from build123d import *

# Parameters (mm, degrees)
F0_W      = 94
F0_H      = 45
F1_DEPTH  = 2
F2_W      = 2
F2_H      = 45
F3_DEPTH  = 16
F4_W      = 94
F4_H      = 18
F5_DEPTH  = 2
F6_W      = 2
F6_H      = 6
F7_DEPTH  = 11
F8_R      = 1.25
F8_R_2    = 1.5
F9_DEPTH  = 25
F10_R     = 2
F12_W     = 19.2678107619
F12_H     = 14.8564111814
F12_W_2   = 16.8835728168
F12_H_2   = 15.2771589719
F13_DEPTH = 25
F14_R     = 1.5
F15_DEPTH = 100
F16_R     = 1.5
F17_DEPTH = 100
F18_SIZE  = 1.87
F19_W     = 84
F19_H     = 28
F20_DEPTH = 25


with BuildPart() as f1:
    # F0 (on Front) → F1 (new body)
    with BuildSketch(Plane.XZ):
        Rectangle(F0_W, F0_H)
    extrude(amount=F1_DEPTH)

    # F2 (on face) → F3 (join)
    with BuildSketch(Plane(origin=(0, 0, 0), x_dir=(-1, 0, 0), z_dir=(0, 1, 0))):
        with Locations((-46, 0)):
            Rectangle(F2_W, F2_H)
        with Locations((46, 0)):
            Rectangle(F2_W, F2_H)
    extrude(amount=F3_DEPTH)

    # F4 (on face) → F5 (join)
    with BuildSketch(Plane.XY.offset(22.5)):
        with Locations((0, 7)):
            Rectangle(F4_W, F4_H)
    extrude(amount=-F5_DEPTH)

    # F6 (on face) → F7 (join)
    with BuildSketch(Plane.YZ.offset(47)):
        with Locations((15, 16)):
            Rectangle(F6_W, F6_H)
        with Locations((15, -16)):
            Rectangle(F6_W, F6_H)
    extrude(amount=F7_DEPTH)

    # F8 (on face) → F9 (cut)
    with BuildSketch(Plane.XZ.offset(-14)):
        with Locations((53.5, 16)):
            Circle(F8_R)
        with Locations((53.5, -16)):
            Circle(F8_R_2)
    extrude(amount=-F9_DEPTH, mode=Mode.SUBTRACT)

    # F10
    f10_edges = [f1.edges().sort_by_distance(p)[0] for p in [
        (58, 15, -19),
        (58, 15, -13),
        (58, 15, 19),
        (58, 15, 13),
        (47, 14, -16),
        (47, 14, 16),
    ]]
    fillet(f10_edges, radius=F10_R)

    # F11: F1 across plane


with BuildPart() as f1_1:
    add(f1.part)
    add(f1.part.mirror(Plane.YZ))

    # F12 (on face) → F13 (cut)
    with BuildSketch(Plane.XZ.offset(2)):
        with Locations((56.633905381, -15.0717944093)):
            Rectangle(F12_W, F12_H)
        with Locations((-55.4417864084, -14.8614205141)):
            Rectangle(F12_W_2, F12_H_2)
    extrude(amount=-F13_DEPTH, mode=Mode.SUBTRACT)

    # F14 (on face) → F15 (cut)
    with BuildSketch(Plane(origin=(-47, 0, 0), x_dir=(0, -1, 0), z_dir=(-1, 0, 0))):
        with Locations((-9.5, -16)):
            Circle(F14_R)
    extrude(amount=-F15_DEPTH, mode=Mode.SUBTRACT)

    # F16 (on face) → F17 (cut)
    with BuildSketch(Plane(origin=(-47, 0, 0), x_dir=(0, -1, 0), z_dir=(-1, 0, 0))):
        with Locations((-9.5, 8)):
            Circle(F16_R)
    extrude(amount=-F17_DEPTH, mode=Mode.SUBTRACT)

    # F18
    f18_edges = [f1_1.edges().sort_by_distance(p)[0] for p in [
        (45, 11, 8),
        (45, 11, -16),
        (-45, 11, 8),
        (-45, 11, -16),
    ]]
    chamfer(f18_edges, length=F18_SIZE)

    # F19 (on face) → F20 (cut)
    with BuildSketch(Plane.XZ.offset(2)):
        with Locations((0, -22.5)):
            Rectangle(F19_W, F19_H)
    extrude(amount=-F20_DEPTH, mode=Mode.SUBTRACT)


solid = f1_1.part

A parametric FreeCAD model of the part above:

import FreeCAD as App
import Part
import Sketcher
Q = App.Units.Quantity


def edges_at(feature, points):
    """Names of the edges that pass closest to the given points."""
    edges = feature.Shape.Edges
    near = lambda p: min(range(len(edges)), key=lambda i: edges[i].distToShape(Part.Vertex(*p))[0])
    return sorted({f"Edge{near(p) + 1}" for p in points})

doc = App.newDocument("Part")
body = doc.addObject("PartDesign::Body", "Body")

# Sketch on XZ plane
sketch1 = doc.addObject("Sketcher::SketchObject", "Sketch")
body.addObject(sketch1)
sketch1.AttachmentSupport = (doc.XZ_Plane, [""])
sketch1.MapMode = "FlatFace"
sketch1.addGeometry([
    Part.LineSegment(App.Vector(-47, 22, 0), App.Vector(-47, -22, 0)),
    Part.LineSegment(App.Vector(-47, -22, 0), App.Vector(47, -22, 0)),
    Part.LineSegment(App.Vector(47, -22, 0), App.Vector(47, 22, 0)),
    Part.LineSegment(App.Vector(47, 22, 0), App.Vector(-47, 22, 0)),
], False)
sketch1.addConstraint([
    Sketcher.Constraint("Coincident", 0, 2, 1, 1),
    Sketcher.Constraint("Coincident", 1, 2, 2, 1),
    Sketcher.Constraint("Coincident", 2, 2, 3, 1),
    Sketcher.Constraint("Coincident", 3, 2, 0, 1),
    Sketcher.Constraint("Vertical", 0),
    Sketcher.Constraint("Horizontal", 1),
    Sketcher.Constraint("Vertical", 2),
    Sketcher.Constraint("Horizontal", 3),
    Sketcher.Constraint("Symmetric", 0, 2, 2, 2, -1, 1),
    Sketcher.Constraint("DistanceX", 1, 1, 1, 2, Q("94 mm")),
    Sketcher.Constraint("DistanceY", 0, 2, 0, 1, Q("45 mm")),
])
pad1 = doc.addObject("PartDesign::Pad", "Pad")
body.addObject(pad1)
pad1.Profile = sketch1
pad1.Length = 2

# Sketch on XZ plane
sketch2 = doc.addObject("Sketcher::SketchObject", "Sketch001")
body.addObject(sketch2)
sketch2.AttachmentSupport = (doc.XZ_Plane, [""])
sketch2.MapMode = "FlatFace"
sketch2.addGeometry([
    Part.LineSegment(App.Vector(47, 22.5, 0), App.Vector(47, -22.5, 0)),  # 0
    Part.LineSegment(App.Vector(47, -22.5, 0), App.Vector(45, -22.5, 0)),  # 1
    Part.LineSegment(App.Vector(45, -22.5, 0), App.Vector(45, 22.5, 0)),  # 2
    Part.LineSegment(App.Vector(45, 22.5, 0), App.Vector(47, 22.5, 0)),  # 3
    Part.LineSegment(App.Vector(-45, 22.5, 0), App.Vector(-45, -22.5, 0)),  # 4
    Part.LineSegment(App.Vector(-45, -22.5, 0), App.Vector(-47, -22.5, 0)),  # 5
    Part.LineSegment(App.Vector(-47, -22.5, 0), App.Vector(-47, 22.5, 0)),  # 6
    Part.LineSegment(App.Vector(-47, 22.5, 0), App.Vector(-45, 22.5, 0)),  # 7
], False)
sketch2.addConstraint([
    Sketcher.Constraint("Coincident", 0, 2, 1, 1),
    Sketcher.Constraint("Coincident", 1, 2, 2, 1),
    Sketcher.Constraint("Coincident", 2, 2, 3, 1),
    Sketcher.Constraint("Coincident", 3, 2, 0, 1),
    Sketcher.Constraint("Coincident", 4, 2, 5, 1),
    Sketcher.Constraint("Coincident", 5, 2, 6, 1),
    Sketcher.Constraint("Coincident", 6, 2, 7, 1),
    Sketcher.Constraint("Coincident", 7, 2, 4, 1),
    Sketcher.Constraint("Vertical", 0),
    Sketcher.Constraint("Horizontal", 1),
    Sketcher.Constraint("Vertical", 2),
    Sketcher.Constraint("Horizontal", 3),
    Sketcher.Constraint("Vertical", 4),
    Sketcher.Constraint("Horizontal", 5),
    Sketcher.Constraint("Vertical", 6),
    Sketcher.Constraint("Horizontal", 7),
    Sketcher.Constraint("Symmetric", 2, 2, 4, 2, -1, 1),
    Sketcher.Constraint("Symmetric", 0, 2, 6, 2, -1, 1),
    Sketcher.Constraint("Horizontal", 1, 2, 4, 2),
    Sketcher.Constraint("DistanceX", 1, 2, 1, 1, Q("2 mm")),
    Sketcher.Constraint("DistanceY", 0, 2, 0, 1, Q("45 mm")),
    Sketcher.Constraint("DistanceX", -1, 1, 0, 2, Q("47 mm")),
])
pad2 = doc.addObject("PartDesign::Pad", "Pad001")
body.addObject(pad2)
pad2.Profile = sketch2
pad2.Length = 16
pad2.Reversed = True

# Sketch on XY plane
sketch3 = doc.addObject("Sketcher::SketchObject", "Sketch002")
body.addObject(sketch3)
sketch3.AttachmentSupport = (doc.XY_Plane, [""])
sketch3.MapMode = "FlatFace"
sketch3.AttachmentOffset = App.Placement(App.Vector(0, 0, 22.5), App.Rotation())
sketch3.addGeometry([
    Part.LineSegment(App.Vector(-47, 16, 0), App.Vector(-47, -2, 0)),
    Part.LineSegment(App.Vector(-47, -2, 0), App.Vector(47, -2, 0)),
    Part.LineSegment(App.Vector(47, -2, 0), App.Vector(47, 16, 0)),
    Part.LineSegment(App.Vector(47, 16, 0), App.Vector(-47, 16, 0)),
], False)
sketch3.addConstraint([
    Sketcher.Constraint("Coincident", 0, 2, 1, 1),
    Sketcher.Constraint("Coincident", 1, 2, 2, 1),
    Sketcher.Constraint("Coincident", 2, 2, 3, 1),
    Sketcher.Constraint("Coincident", 3, 2, 0, 1),
    Sketcher.Constraint("Vertical", 0),
    Sketcher.Constraint("Horizontal", 1),
    Sketcher.Constraint("Vertical", 2),
    Sketcher.Constraint("Horizontal", 3),
    Sketcher.Constraint("DistanceX", 1, 1, 1, 2, Q("94 mm")),
    Sketcher.Constraint("DistanceY", 0, 2, 0, 1, Q("18 mm")),
    Sketcher.Constraint("DistanceX", 0, 2, -1, 1, Q("47 mm")),
    Sketcher.Constraint("DistanceY", 0, 2, -1, 1, Q("2 mm")),
])
pad3 = doc.addObject("PartDesign::Pad", "Pad002")
body.addObject(pad3)
pad3.Profile = sketch3
pad3.Length = 2
pad3.Reversed = True

# Sketch on YZ plane
sketch4 = doc.addObject("Sketcher::SketchObject", "Sketch003")
body.addObject(sketch4)
sketch4.AttachmentSupport = (doc.YZ_Plane, [""])
sketch4.MapMode = "FlatFace"
sketch4.AttachmentOffset = App.Placement(App.Vector(0, 0, 47), App.Rotation())
sketch4.addGeometry([
    Part.LineSegment(App.Vector(14, 19, 0), App.Vector(14, 13, 0)),  # 0
    Part.LineSegment(App.Vector(14, 13, 0), App.Vector(16, 13, 0)),  # 1
    Part.LineSegment(App.Vector(16, 13, 0), App.Vector(16, 19, 0)),  # 2
    Part.LineSegment(App.Vector(16, 19, 0), App.Vector(14, 19, 0)),  # 3
    Part.LineSegment(App.Vector(14, -13, 0), App.Vector(14, -19, 0)),  # 4
    Part.LineSegment(App.Vector(14, -19, 0), App.Vector(16, -19, 0)),  # 5
    Part.LineSegment(App.Vector(16, -19, 0), App.Vector(16, -13, 0)),  # 6
    Part.LineSegment(App.Vector(16, -13, 0), App.Vector(14, -13, 0)),  # 7
], False)
sketch4.addConstraint([
    Sketcher.Constraint("Coincident", 0, 2, 1, 1),
    Sketcher.Constraint("Coincident", 1, 2, 2, 1),
    Sketcher.Constraint("Coincident", 2, 2, 3, 1),
    Sketcher.Constraint("Coincident", 3, 2, 0, 1),
    Sketcher.Constraint("Coincident", 4, 2, 5, 1),
    Sketcher.Constraint("Coincident", 5, 2, 6, 1),
    Sketcher.Constraint("Coincident", 6, 2, 7, 1),
    Sketcher.Constraint("Coincident", 7, 2, 4, 1),
    Sketcher.Constraint("Vertical", 0),
    Sketcher.Constraint("Horizontal", 1),
    Sketcher.Constraint("Vertical", 2),
    Sketcher.Constraint("Horizontal", 3),
    Sketcher.Constraint("Vertical", 4),
    Sketcher.Constraint("Horizontal", 5),
    Sketcher.Constraint("Vertical", 6),
    Sketcher.Constraint("Horizontal", 7),
    Sketcher.Constraint("Symmetric", 3, 2, 4, 2, -1),
    Sketcher.Constraint("Symmetric", 1, 2, 6, 2, -1),
    Sketcher.Constraint("DistanceX", 1, 1, 1, 2, Q("2 mm")),
    Sketcher.Constraint("DistanceY", 0, 2, 0, 1, Q("6 mm")),
    Sketcher.Constraint("DistanceX", -1, 1, 0, 2, Q("14 mm")),
    Sketcher.Constraint("DistanceY", -1, 1, 0, 2, Q("13 mm")),
])
pad4 = doc.addObject("PartDesign::Pad", "Pad003")
body.addObject(pad4)
pad4.Profile = sketch4
pad4.Length = 11

# Sketch on XZ plane
sketch5 = doc.addObject("Sketcher::SketchObject", "Sketch004")
body.addObject(sketch5)
sketch5.AttachmentSupport = (doc.XZ_Plane, [""])
sketch5.MapMode = "FlatFace"
sketch5.AttachmentOffset = App.Placement(App.Vector(0, 0, -14), App.Rotation())
sketch5.addGeometry([
    Part.Circle(App.Vector(53.5, 16, 0), App.Vector(0, 0, 1), 1.2),
    Part.Circle(App.Vector(53.5, -16, 0), App.Vector(0, 0, 1), 1.5),
], False)
sketch5.addConstraint([
    Sketcher.Constraint("Symmetric", 0, 3, 1, 3, -1),
    Sketcher.Constraint("Diameter", 1, Q("3 mm")),
    Sketcher.Constraint("Diameter", 0, Q("2.5 mm")),
    Sketcher.Constraint("DistanceY", -1, 1, 0, 3, Q("16 mm")),
    Sketcher.Constraint("DistanceX", -1, 1, 0, 3, Q("53.5 mm")),
])
pocket1 = doc.addObject("PartDesign::Pocket", "Pocket")
body.addObject(pocket1)
pocket1.Profile = sketch5
pocket1.Length = 25
doc.recompute()

fillet = doc.addObject("PartDesign::Fillet", "Fillet")
body.addObject(fillet)
fillet.Base = (pocket1, edges_at(pocket1, [
    (58, 15, -19),
    (58, 15, -13),
    (58, 15, 19),
    (58, 15, 13),
    (47, 14, -16),
    (47, 14, 16),
]))
fillet.Radius = 2
body2 = doc.addObject("PartDesign::Body", "Body001")
doc.recompute()

body2.BaseFeature = body
doc.recompute()

mirroring = doc.addObject("Part::Mirroring", "Mirroring")
mirroring.Source = body
mirroring.Base = App.Vector(0, 0, 0)
mirroring.Normal = App.Vector(1, 0, 0)
body3 = doc.addObject("PartDesign::Body", "Body002")
body3.BaseFeature = mirroring
boolean = doc.addObject("PartDesign::Boolean", "Boolean")
body2.addObject(boolean)
boolean.Type = "Fuse"
boolean.addObjects([body3])
doc.recompute()

# Sketch on XZ plane
sketch6 = doc.addObject("Sketcher::SketchObject", "Sketch005")
body2.addObject(sketch6)
sketch6.AttachmentSupport = (doc.getObject("XZ_Plane001"), [""])
sketch6.MapMode = "FlatFace"
sketch6.AttachmentOffset = App.Placement(App.Vector(0, 0, 2), App.Rotation())
sketch6.addGeometry([
    Part.LineSegment(App.Vector(47, -8, 0), App.Vector(47, -22, 0)),  # 0
    Part.LineSegment(App.Vector(47, -22, 0), App.Vector(66, -22, 0)),  # 1
    Part.LineSegment(App.Vector(66, -22, 0), App.Vector(66, -8, 0)),  # 2
    Part.LineSegment(App.Vector(66, -8, 0), App.Vector(47, -8, 0)),  # 3
    Part.LineSegment(App.Vector(-64, -7, 0), App.Vector(-64, -22, 0)),  # 4
    Part.LineSegment(App.Vector(-64, -22, 0), App.Vector(-47, -22, 0)),  # 5
    Part.LineSegment(App.Vector(-47, -22, 0), App.Vector(-47, -7, 0)),  # 6
    Part.LineSegment(App.Vector(-47, -7, 0), App.Vector(-64, -7, 0)),  # 7
], False)
sketch6.addConstraint([
    Sketcher.Constraint("Coincident", 0, 2, 1, 1),
    Sketcher.Constraint("Coincident", 1, 2, 2, 1),
    Sketcher.Constraint("Coincident", 2, 2, 3, 1),
    Sketcher.Constraint("Coincident", 3, 2, 0, 1),
    Sketcher.Constraint("Coincident", 4, 2, 5, 1),
    Sketcher.Constraint("Coincident", 5, 2, 6, 1),
    Sketcher.Constraint("Coincident", 6, 2, 7, 1),
    Sketcher.Constraint("Coincident", 7, 2, 4, 1),
    Sketcher.Constraint("Vertical", 0),
    Sketcher.Constraint("Horizontal", 1),
    Sketcher.Constraint("Vertical", 2),
    Sketcher.Constraint("Horizontal", 3),
    Sketcher.Constraint("Vertical", 4),
    Sketcher.Constraint("Horizontal", 5),
    Sketcher.Constraint("Vertical", 6),
    Sketcher.Constraint("Horizontal", 7),
    Sketcher.Constraint("Symmetric", 0, 2, 5, 2, -2),
    Sketcher.Constraint("DistanceX", -1, 1, 0, 2, Q("47 mm")),
    Sketcher.Constraint("DistanceY", 0, 2, -1, 1, Q("22.5 mm")),
    Sketcher.Constraint("DistanceX", 1, 1, 1, 2, Q("19.267811 mm")),
    Sketcher.Constraint("DistanceY", 0, 2, 0, 1, Q("14.856411 mm")),
    Sketcher.Constraint("DistanceY", 4, 2, 4, 1, Q("15.277159 mm")),
    Sketcher.Constraint("DistanceX", 5, 1, 5, 2, Q("16.883573 mm")),
])
pocket2 = doc.addObject("PartDesign::Pocket", "Pocket001")
body2.addObject(pocket2)
pocket2.Profile = sketch6
pocket2.Length = 25

# Sketch on YZ plane
sketch7 = doc.addObject("Sketcher::SketchObject", "Sketch006")
body2.addObject(sketch7)
sketch7.AttachmentSupport = (doc.getObject("YZ_Plane001"), [""])
sketch7.MapMode = "FlatFace"
sketch7.AttachmentOffset = App.Placement(App.Vector(0, 0, -47), App.Rotation())
sketch7.addGeometry(Part.Circle(App.Vector(9.5, -16, 0), App.Vector(0, 0, 1), 1.5), False)
sketch7.addConstraint([
    Sketcher.Constraint("Diameter", 0, Q("3 mm")),
    Sketcher.Constraint("DistanceY", 0, 3, -1, 1, Q("16 mm")),
    Sketcher.Constraint("DistanceX", -1, 1, 0, 3, Q("9.5 mm")),
])
pocket3 = doc.addObject("PartDesign::Pocket", "Pocket002")
body2.addObject(pocket3)
pocket3.Profile = sketch7
pocket3.Length = 100
pocket3.Reversed = True

# Sketch on YZ plane
sketch8 = doc.addObject("Sketcher::SketchObject", "Sketch007")
body2.addObject(sketch8)
sketch8.AttachmentSupport = (doc.getObject("YZ_Plane001"), [""])
sketch8.MapMode = "FlatFace"
sketch8.AttachmentOffset = App.Placement(App.Vector(0, 0, -47), App.Rotation())
sketch8.addGeometry(Part.Circle(App.Vector(9.5, 8, 0), App.Vector(0, 0, 1), 1.5), False)
sketch8.addConstraint([
    Sketcher.Constraint("Diameter", 0, Q("3 mm")),
    Sketcher.Constraint("DistanceY", -1, 1, 0, 3, Q("8 mm")),
    Sketcher.Constraint("DistanceX", -1, 1, 0, 3, Q("9.5 mm")),
])
pocket4 = doc.addObject("PartDesign::Pocket", "Pocket003")
body2.addObject(pocket4)
pocket4.Profile = sketch8
pocket4.Length = 100
pocket4.Reversed = True
doc.recompute()

chamfer = doc.addObject("PartDesign::Chamfer", "Chamfer")
body2.addObject(chamfer)
chamfer.Base = (pocket4, edges_at(pocket4, [
    (45, 11, 8),
    (45, 11, -16),
    (-45, 11, 8),
    (-45, 11, -16),
]))
chamfer.Size = 1.87

# Sketch on XZ plane
sketch9 = doc.addObject("Sketcher::SketchObject", "Sketch008")
body2.addObject(sketch9)
sketch9.AttachmentSupport = (doc.getObject("XZ_Plane001"), [""])
sketch9.MapMode = "FlatFace"
sketch9.AttachmentOffset = App.Placement(App.Vector(0, 0, 2), App.Rotation())
sketch9.addGeometry([
    Part.LineSegment(App.Vector(-42, -8, 0), App.Vector(-42, -36, 0)),
    Part.LineSegment(App.Vector(-42, -36, 0), App.Vector(42, -36, 0)),
    Part.LineSegment(App.Vector(42, -36, 0), App.Vector(42, -8, 0)),
    Part.LineSegment(App.Vector(42, -8, 0), App.Vector(-42, -8, 0)),
], False)
sketch9.addConstraint([
    Sketcher.Constraint("Coincident", 0, 2, 1, 1),
    Sketcher.Constraint("Coincident", 1, 2, 2, 1),
    Sketcher.Constraint("Coincident", 2, 2, 3, 1),
    Sketcher.Constraint("Coincident", 3, 2, 0, 1),
    Sketcher.Constraint("Vertical", 0),
    Sketcher.Constraint("Horizontal", 1),
    Sketcher.Constraint("Vertical", 2),
    Sketcher.Constraint("Horizontal", 3),
    Sketcher.Constraint("DistanceX", 1, 1, 1, 2, Q("84 mm")),
    Sketcher.Constraint("DistanceY", 0, 2, 0, 1, Q("28 mm")),
    Sketcher.Constraint("DistanceX", 0, 2, -1, 1, Q("42 mm")),
    Sketcher.Constraint("DistanceY", 0, 2, -1, 1, Q("36.5 mm")),
])
pocket5 = doc.addObject("PartDesign::Pocket", "Pocket004")
body2.addObject(pocket5)
pocket5.Profile = sketch9
pocket5.Length = 25
mirroring.Visibility = False

doc.recompute()
